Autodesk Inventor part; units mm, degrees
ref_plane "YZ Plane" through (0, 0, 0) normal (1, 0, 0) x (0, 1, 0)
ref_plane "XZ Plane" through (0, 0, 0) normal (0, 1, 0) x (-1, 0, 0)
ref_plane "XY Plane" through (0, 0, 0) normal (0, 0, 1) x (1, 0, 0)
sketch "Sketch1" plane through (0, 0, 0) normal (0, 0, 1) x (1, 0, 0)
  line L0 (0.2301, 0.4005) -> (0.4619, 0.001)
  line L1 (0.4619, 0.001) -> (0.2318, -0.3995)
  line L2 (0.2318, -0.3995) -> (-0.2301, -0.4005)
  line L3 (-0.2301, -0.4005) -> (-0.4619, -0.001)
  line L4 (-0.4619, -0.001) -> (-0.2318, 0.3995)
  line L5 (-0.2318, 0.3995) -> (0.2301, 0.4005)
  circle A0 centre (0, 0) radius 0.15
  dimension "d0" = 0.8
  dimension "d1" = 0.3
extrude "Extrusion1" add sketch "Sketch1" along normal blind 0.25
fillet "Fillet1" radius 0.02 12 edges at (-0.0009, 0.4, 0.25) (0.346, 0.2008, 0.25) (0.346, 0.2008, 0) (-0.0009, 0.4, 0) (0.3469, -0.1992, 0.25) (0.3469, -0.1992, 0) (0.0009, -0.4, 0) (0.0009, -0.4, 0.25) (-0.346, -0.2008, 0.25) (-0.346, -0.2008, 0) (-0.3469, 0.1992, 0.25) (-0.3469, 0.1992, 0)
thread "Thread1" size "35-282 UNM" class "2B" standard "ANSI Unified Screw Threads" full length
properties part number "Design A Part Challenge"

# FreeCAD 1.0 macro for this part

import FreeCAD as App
import Part
import Sketcher
from FreeCAD import Vector


def edges_at(feature, points):
    """Names of the edges that pass closest to the given points."""
    edges = feature.Shape.Edges
    near = lambda p: min(range(len(edges)), key=lambda i: edges[i].distToShape(Part.Vertex(*p))[0])
    return sorted({f"Edge{near(p) + 1}" for p in points})


def add_polygon(sketch, points):
    """Adds a closed chain of lines whose ends are joined by coincident constraints."""
    first, n = sketch.GeometryCount, len(points)
    for a, b in zip(points, points[1:] + points[:1]):
        sketch.addGeometry(Part.LineSegment(App.Vector(*a, 0), App.Vector(*b, 0)), False)
    for i in range(n):
        sketch.addConstraint(Sketcher.Constraint("Coincident", first + i, 2, first + (i + 1) % n, 1))

doc = App.newDocument("Part")
body = doc.addObject("PartDesign::Body", "Body")

sketch1 = doc.addObject("Sketcher::SketchObject", "Sketch")
body.addObject(sketch1)
sketch1.AttachmentSupport = (doc.XY_Plane, [""])
sketch1.MapMode = "FlatFace"
add_polygon(sketch1, [(0.46, 0), (0.23, 0.4), (-0.23, 0.4), (-0.46, 0), (-0.23, -0.4), (0.23, -0.4)])
sketch1.addGeometry(Part.Circle(Vector(0, 0, 0), Vector(0, 0, 1), 0.15), False)
sketch1.addConstraint(Sketcher.Constraint("Coincident", 6, 3, -1, 1))
sketch1.addConstraint(Sketcher.Constraint("Symmetric", 0, 2, 3, 2, -1, 1))
sketch1.addConstraint(Sketcher.Constraint("Symmetric", 1, 2, 4, 2, -1, 1))
sketch1.addConstraint(Sketcher.Constraint("Symmetric", 2, 2, 5, 2, -1, 1))
sketch1.addConstraint(Sketcher.Constraint("Equal", 0, 1))
sketch1.addConstraint(Sketcher.Constraint("Equal", 1, 2))
sketch1.addConstraint(Sketcher.Constraint("Diameter", 6, 0.3))
sketch1.addConstraint(Sketcher.Constraint("DistanceY", 3, 2, 1, 2, 0.8))
sketch1.addConstraint(Sketcher.Constraint("DistanceX", -1, 1, 0, 2, 0.23))
sketch1.addConstraint(Sketcher.Constraint("DistanceX", 2, 2, 1, 2, 0.23))
sketch1.addConstraint(Sketcher.Constraint("DistanceY", 2, 2, -1, 1, 0.001))
pad1 = doc.addObject("PartDesign::Pad", "Pad")
body.addObject(pad1)
pad1.Profile = sketch1
pad1.Length = 0.25
doc.recompute()

fillet = doc.addObject("PartDesign::Fillet", "Fillet")
body.addObject(fillet)
fillet.Base = (pad1, edges_at(pad1, [
    (-0.001, 0.4, 0.25),
    (0.346, 0.201, 0.25),
    (0.346, 0.201, 0),
    (-0.001, 0.4, 0),
    (0.347, -0.199, 0.25),
    (0.347, -0.199, 0),
    (0.001, -0.4, 0),
    (0.001, -0.4, 0.25),
    (-0.346, -0.201, 0.25),
    (-0.346, -0.201, 0),
    (-0.347, 0.199, 0.25),
    (-0.347, 0.199, 0),
]))
fillet.Radius = 0.02

doc.recompute()
